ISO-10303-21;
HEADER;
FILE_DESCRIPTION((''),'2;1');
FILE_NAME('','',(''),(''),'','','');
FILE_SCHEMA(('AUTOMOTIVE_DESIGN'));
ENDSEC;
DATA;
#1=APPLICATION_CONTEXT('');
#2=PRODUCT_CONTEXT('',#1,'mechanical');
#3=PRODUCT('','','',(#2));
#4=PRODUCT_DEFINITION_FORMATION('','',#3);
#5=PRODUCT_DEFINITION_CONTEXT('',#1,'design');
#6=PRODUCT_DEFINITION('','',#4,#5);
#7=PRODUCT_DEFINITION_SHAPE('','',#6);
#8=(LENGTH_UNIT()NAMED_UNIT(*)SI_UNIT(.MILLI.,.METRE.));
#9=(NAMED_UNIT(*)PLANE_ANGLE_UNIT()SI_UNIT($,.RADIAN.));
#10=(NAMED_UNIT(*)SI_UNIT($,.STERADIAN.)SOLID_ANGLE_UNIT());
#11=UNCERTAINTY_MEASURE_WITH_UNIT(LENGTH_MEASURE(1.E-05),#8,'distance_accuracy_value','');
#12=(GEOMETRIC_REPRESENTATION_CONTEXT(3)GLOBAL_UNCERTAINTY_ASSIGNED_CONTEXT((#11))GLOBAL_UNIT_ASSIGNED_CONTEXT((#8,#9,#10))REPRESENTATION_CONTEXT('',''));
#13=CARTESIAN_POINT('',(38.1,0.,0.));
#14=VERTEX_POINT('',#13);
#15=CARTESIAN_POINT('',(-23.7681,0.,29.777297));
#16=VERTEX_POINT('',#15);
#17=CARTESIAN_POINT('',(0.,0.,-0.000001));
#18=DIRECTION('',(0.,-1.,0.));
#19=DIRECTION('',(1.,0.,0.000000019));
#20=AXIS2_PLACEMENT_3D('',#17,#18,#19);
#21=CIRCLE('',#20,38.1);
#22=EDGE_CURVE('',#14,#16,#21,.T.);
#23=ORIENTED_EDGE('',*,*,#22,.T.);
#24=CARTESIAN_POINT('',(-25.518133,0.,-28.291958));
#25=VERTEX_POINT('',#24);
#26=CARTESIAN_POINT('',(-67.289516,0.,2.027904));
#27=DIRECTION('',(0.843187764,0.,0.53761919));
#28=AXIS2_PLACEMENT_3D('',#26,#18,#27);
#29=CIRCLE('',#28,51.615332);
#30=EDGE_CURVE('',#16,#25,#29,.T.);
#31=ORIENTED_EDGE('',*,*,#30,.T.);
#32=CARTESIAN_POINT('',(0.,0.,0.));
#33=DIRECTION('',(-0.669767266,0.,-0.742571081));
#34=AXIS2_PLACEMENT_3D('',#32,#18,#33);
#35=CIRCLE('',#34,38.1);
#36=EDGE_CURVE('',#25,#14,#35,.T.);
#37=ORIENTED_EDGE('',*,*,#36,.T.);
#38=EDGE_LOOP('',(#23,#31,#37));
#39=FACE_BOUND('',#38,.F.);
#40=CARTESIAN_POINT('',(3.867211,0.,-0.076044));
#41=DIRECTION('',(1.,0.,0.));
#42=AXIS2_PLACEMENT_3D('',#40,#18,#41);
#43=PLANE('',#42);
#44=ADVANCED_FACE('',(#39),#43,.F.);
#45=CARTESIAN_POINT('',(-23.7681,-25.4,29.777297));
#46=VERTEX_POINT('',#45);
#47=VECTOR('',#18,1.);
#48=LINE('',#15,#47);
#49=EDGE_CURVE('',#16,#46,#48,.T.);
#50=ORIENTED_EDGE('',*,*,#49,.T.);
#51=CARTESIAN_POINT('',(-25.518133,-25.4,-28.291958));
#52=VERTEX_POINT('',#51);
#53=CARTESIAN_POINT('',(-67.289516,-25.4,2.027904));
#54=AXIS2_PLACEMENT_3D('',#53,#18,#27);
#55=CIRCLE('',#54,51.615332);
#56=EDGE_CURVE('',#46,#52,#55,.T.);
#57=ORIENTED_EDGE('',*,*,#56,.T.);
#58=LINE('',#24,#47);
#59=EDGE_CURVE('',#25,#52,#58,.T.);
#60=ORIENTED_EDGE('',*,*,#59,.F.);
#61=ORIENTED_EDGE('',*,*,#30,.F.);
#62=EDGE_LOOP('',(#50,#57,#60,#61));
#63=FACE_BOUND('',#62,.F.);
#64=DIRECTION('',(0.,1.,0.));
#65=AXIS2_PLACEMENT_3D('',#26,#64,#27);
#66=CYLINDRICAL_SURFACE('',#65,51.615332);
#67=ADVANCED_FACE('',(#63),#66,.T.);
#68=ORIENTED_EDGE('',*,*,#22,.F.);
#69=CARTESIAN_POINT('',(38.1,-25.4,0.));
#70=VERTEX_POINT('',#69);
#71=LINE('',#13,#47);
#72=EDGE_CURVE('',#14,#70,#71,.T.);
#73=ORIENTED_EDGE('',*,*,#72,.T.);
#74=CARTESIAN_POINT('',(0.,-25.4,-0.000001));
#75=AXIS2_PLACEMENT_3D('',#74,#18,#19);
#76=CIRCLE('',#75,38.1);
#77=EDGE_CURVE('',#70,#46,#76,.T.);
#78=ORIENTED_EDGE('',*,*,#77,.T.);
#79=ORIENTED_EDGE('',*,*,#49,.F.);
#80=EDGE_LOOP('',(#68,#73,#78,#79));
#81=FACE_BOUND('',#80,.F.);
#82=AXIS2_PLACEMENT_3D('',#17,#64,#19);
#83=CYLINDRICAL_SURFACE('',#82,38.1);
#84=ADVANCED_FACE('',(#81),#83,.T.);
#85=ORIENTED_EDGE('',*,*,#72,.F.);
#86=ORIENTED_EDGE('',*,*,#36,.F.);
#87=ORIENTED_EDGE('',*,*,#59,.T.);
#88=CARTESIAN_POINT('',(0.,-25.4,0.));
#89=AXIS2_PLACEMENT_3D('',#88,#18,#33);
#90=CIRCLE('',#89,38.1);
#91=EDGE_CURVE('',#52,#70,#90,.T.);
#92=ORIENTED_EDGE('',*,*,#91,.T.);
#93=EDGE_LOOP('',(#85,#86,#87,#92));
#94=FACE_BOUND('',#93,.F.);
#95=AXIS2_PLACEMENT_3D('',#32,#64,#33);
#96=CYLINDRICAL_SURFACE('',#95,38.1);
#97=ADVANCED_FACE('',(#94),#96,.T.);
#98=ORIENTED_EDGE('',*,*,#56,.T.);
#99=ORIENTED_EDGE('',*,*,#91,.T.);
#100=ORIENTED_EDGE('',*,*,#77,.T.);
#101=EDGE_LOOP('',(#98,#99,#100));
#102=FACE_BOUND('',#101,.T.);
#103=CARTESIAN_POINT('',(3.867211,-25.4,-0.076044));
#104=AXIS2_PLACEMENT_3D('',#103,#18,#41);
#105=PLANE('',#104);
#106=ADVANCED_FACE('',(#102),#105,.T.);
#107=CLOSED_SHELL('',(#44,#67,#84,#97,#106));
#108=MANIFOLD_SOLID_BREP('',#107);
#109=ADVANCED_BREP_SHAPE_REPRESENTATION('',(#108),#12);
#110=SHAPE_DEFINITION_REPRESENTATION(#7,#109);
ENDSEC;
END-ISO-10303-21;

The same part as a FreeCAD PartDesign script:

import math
import FreeCAD as App
import Part
import Sketcher
Q = App.Units.Quantity

doc = App.newDocument("Part")
params = doc.addObject("Spreadsheet::Sheet", "Params")
for row, (alias, value) in enumerate([
    ("sketch1_radius", "1.5 in"),
    ("pad1_length", "1 in"),
], start=1):
    params.set(f"A{row}", alias)
    params.set(f"B{row}", "=" + value)
    params.setAlias(f"B{row}", alias)

body = doc.addObject("PartDesign::Body", "Body")

# Sketch on XZ plane
sketch1 = body.newObject("Sketcher::SketchObject", "Sketch")
sketch1.AttachmentSupport = (doc.getObject("XZ_Plane"), [""])
sketch1.MapMode = "FlatFace"
sketch1.addGeometry([
    Part.ArcOfCircle(Part.Circle(App.Vector(0, 0, 0), App.Vector(0, 0, 1), 38), math.radians(-132), math.radians(0)),
    Part.ArcOfCircle(Part.Circle(App.Vector(0, 0, 0), App.Vector(0, 0, 1), 38), math.radians(0), math.radians(129)),
    Part.ArcOfCircle(Part.Circle(App.Vector(-67, 2, 0), App.Vector(0, 0, 1), 52), math.radians(33), math.radians(324)),
], False)
sketch1.addConstraint([
    Sketcher.Constraint("Tangent", 0, 2, 1, 1),
    Sketcher.Constraint("Coincident", 1, 2, 2, 1),
    Sketcher.Constraint("Coincident", 2, 2, 0, 1),
    Sketcher.Constraint("Coincident", 0, 3, -1, 1),
    Sketcher.Constraint("Equal", 0, 1),
    Sketcher.Constraint("PointOnObject", 0, 2, -1),
    Sketcher.Constraint("Radius", 0, Q("1.5 in")),
    Sketcher.Constraint("Radius", 2, 51.615332),
    Sketcher.Constraint("DistanceX", 1, 2, -1, 1, 23.7681),
    Sketcher.Constraint("DistanceY", 2, 2, -1, 1, 28.291958),
])
sketch1.setExpression("Constraints[6]", "Params.sketch1_radius")
pad1 = body.newObject("PartDesign::Pad", "Pad")
pad1.Profile = sketch1
pad1.setExpression("Length", "Params.pad1_length")

doc.recompute()
